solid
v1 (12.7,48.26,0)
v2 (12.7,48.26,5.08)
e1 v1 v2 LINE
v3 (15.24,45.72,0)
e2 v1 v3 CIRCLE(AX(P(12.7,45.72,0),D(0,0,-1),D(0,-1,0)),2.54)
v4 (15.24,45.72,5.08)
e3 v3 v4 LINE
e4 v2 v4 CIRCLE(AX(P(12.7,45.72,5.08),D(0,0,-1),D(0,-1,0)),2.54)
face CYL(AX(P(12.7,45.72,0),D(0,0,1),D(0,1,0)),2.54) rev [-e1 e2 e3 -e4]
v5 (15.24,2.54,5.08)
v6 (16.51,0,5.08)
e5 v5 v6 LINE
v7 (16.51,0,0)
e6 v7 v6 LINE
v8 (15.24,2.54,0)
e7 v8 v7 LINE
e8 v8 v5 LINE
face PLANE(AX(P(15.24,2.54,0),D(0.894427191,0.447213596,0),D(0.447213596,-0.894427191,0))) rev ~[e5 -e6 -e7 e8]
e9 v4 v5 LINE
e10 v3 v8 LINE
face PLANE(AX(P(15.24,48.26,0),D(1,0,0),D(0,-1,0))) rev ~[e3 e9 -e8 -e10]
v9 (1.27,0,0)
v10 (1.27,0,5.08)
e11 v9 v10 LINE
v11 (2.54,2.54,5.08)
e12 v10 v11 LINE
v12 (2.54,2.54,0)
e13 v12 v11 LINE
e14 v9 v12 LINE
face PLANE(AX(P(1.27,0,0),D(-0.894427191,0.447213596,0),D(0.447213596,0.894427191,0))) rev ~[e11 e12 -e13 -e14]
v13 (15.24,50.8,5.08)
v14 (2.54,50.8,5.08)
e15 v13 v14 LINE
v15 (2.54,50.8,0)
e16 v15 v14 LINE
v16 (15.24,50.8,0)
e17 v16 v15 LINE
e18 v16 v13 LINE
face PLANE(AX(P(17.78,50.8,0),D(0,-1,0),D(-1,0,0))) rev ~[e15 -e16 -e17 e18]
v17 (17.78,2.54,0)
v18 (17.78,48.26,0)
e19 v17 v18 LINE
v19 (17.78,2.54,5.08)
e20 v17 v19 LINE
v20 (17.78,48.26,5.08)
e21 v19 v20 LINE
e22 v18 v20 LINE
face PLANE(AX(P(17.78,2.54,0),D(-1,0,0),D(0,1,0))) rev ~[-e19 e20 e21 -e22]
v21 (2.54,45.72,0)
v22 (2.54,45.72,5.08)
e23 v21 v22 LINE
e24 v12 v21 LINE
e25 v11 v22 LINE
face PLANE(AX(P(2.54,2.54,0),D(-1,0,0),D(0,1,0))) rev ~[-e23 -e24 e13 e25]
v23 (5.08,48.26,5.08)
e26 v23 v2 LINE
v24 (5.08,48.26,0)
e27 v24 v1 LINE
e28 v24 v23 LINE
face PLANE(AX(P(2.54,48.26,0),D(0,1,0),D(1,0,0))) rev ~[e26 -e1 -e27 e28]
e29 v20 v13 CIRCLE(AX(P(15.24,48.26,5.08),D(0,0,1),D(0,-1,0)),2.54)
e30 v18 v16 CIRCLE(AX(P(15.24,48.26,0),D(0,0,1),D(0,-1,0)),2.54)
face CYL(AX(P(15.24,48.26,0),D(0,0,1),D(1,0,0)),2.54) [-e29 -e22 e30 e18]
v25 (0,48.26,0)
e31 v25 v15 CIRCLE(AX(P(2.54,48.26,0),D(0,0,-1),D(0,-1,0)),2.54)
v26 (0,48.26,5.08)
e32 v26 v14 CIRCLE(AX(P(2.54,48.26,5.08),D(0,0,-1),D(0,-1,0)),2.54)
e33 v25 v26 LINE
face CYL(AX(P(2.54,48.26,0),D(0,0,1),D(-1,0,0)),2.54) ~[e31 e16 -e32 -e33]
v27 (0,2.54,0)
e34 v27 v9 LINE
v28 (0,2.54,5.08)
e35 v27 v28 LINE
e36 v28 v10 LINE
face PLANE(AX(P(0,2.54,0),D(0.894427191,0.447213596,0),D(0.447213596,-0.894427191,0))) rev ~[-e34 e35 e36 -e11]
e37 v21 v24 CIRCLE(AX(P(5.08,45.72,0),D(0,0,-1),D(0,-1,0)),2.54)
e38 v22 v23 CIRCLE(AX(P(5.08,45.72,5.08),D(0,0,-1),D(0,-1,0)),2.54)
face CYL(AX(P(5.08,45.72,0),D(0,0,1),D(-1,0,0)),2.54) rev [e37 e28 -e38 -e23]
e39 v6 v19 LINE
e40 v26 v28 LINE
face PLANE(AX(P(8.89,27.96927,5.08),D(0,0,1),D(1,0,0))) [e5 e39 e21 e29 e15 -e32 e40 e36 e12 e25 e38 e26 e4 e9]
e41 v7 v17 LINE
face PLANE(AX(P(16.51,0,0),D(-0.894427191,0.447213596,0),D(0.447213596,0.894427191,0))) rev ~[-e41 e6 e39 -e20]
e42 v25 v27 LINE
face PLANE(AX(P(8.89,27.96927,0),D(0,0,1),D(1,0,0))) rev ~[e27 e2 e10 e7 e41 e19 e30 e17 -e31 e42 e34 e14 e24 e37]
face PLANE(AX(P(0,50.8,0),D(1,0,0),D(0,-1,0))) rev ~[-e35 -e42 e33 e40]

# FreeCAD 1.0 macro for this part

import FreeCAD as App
import Part
import Sketcher
from FreeCAD import Vector
Q = App.Units.Quantity


def edges_at(feature, points):
    """Names of the edges that pass closest to the given points."""
    edges = feature.Shape.Edges
    near = lambda p: min(range(len(edges)), key=lambda i: edges[i].distToShape(Part.Vertex(*p))[0])
    return sorted({f"Edge{near(p) + 1}" for p in points})

doc = App.newDocument("Part")
body = doc.addObject("PartDesign::Body", "Body")

sketch1 = body.newObject("Sketcher::SketchObject", "Sketch")
sketch1.AttachmentSupport = (doc.getObject("XY_Plane"), [""])
sketch1.MapMode = "FlatFace"
sketch1.addGeometry([
    Part.LineSegment(Vector(0, 50.8, 0), Vector(0, 2.54, 0)),
    Part.LineSegment(Vector(0, 2.54, 0), Vector(1.27, 0, 0)),
    Part.LineSegment(Vector(1.27, 0, 0), Vector(2.54, 2.54, 0)),
    Part.LineSegment(Vector(2.54, 2.54, 0), Vector(2.54, 48.26, 0)),
    Part.LineSegment(Vector(2.54, 48.26, 0), Vector(15.24, 48.26, 0)),
    Part.LineSegment(Vector(15.24, 48.26, 0), Vector(15.24, 2.54, 0)),
    Part.LineSegment(Vector(15.24, 2.54, 0), Vector(16.51, 0, 0)),
    Part.LineSegment(Vector(16.51, 0, 0), Vector(17.78, 2.54, 0)),
    Part.LineSegment(Vector(17.78, 2.54, 0), Vector(17.78, 50.8, 0)),
    Part.LineSegment(Vector(17.78, 50.8, 0), Vector(0, 50.8, 0)),
], False)
sketch1.addConstraint([
    Sketcher.Constraint("Coincident", 0, 2, 1, 1),
    Sketcher.Constraint("Coincident", 1, 2, 2, 1),
    Sketcher.Constraint("Coincident", 2, 2, 3, 1),
    Sketcher.Constraint("Coincident", 3, 2, 4, 1),
    Sketcher.Constraint("Coincident", 4, 2, 5, 1),
    Sketcher.Constraint("Coincident", 5, 2, 6, 1),
    Sketcher.Constraint("Coincident", 6, 2, 7, 1),
    Sketcher.Constraint("Coincident", 7, 2, 8, 1),
    Sketcher.Constraint("Coincident", 8, 2, 9, 1),
    Sketcher.Constraint("Coincident", 9, 2, 0, 1),
    Sketcher.Constraint("Vertical", 0),
    Sketcher.Constraint("Vertical", 3),
    Sketcher.Constraint("Horizontal", 4),
    Sketcher.Constraint("Vertical", 5),
    Sketcher.Constraint("Vertical", 8),
    Sketcher.Constraint("Horizontal", 9),
    Sketcher.Constraint("PointOnObject", 0, 2, -2),
    Sketcher.Constraint("PointOnObject", 1, 2, -1),
    Sketcher.Constraint("PointOnObject", 6, 2, -1),
    Sketcher.Constraint("Parallel", 1, 6),
    Sketcher.Constraint("Parallel", 2, 7),
    Sketcher.Constraint("Horizontal", 0, 2, 2, 2),
    Sketcher.Constraint("Horizontal", 2, 2, 5, 2),
    Sketcher.Constraint("Horizontal", 5, 2, 7, 2),
    Sketcher.Constraint("Equal", 1, 2),
    Sketcher.Constraint("DistanceX", 4, 1, 4, 2, Q("0.5 in")),
    Sketcher.Constraint("DistanceX", 9, 2, 9, 1, Q("0.7 in")),
    Sketcher.Constraint("DistanceY", 0, 2, 0, 1, Q("1.9 in")),
    Sketcher.Constraint("DistanceY", 3, 1, 3, 2, Q("1.8 in")),
    Sketcher.Constraint("DistanceY", -1, 1, 8, 2, Q("2 in")),
])
pad1 = body.newObject("PartDesign::Pad", "Pad")
pad1.Profile = sketch1
pad1.Length = Q("0.2 in")
doc.recompute()

fillet = body.newObject("PartDesign::Fillet", "Fillet")
fillet.Base = (pad1, edges_at(pad1, [
    (2.54, 48.26, 2.54),
    (15.24, 48.26, 2.54),
    (0, 50.8, 2.54),
    (17.78, 50.8, 2.54),
]))
fillet.Radius = Q("0.1 in")

doc.recompute()
